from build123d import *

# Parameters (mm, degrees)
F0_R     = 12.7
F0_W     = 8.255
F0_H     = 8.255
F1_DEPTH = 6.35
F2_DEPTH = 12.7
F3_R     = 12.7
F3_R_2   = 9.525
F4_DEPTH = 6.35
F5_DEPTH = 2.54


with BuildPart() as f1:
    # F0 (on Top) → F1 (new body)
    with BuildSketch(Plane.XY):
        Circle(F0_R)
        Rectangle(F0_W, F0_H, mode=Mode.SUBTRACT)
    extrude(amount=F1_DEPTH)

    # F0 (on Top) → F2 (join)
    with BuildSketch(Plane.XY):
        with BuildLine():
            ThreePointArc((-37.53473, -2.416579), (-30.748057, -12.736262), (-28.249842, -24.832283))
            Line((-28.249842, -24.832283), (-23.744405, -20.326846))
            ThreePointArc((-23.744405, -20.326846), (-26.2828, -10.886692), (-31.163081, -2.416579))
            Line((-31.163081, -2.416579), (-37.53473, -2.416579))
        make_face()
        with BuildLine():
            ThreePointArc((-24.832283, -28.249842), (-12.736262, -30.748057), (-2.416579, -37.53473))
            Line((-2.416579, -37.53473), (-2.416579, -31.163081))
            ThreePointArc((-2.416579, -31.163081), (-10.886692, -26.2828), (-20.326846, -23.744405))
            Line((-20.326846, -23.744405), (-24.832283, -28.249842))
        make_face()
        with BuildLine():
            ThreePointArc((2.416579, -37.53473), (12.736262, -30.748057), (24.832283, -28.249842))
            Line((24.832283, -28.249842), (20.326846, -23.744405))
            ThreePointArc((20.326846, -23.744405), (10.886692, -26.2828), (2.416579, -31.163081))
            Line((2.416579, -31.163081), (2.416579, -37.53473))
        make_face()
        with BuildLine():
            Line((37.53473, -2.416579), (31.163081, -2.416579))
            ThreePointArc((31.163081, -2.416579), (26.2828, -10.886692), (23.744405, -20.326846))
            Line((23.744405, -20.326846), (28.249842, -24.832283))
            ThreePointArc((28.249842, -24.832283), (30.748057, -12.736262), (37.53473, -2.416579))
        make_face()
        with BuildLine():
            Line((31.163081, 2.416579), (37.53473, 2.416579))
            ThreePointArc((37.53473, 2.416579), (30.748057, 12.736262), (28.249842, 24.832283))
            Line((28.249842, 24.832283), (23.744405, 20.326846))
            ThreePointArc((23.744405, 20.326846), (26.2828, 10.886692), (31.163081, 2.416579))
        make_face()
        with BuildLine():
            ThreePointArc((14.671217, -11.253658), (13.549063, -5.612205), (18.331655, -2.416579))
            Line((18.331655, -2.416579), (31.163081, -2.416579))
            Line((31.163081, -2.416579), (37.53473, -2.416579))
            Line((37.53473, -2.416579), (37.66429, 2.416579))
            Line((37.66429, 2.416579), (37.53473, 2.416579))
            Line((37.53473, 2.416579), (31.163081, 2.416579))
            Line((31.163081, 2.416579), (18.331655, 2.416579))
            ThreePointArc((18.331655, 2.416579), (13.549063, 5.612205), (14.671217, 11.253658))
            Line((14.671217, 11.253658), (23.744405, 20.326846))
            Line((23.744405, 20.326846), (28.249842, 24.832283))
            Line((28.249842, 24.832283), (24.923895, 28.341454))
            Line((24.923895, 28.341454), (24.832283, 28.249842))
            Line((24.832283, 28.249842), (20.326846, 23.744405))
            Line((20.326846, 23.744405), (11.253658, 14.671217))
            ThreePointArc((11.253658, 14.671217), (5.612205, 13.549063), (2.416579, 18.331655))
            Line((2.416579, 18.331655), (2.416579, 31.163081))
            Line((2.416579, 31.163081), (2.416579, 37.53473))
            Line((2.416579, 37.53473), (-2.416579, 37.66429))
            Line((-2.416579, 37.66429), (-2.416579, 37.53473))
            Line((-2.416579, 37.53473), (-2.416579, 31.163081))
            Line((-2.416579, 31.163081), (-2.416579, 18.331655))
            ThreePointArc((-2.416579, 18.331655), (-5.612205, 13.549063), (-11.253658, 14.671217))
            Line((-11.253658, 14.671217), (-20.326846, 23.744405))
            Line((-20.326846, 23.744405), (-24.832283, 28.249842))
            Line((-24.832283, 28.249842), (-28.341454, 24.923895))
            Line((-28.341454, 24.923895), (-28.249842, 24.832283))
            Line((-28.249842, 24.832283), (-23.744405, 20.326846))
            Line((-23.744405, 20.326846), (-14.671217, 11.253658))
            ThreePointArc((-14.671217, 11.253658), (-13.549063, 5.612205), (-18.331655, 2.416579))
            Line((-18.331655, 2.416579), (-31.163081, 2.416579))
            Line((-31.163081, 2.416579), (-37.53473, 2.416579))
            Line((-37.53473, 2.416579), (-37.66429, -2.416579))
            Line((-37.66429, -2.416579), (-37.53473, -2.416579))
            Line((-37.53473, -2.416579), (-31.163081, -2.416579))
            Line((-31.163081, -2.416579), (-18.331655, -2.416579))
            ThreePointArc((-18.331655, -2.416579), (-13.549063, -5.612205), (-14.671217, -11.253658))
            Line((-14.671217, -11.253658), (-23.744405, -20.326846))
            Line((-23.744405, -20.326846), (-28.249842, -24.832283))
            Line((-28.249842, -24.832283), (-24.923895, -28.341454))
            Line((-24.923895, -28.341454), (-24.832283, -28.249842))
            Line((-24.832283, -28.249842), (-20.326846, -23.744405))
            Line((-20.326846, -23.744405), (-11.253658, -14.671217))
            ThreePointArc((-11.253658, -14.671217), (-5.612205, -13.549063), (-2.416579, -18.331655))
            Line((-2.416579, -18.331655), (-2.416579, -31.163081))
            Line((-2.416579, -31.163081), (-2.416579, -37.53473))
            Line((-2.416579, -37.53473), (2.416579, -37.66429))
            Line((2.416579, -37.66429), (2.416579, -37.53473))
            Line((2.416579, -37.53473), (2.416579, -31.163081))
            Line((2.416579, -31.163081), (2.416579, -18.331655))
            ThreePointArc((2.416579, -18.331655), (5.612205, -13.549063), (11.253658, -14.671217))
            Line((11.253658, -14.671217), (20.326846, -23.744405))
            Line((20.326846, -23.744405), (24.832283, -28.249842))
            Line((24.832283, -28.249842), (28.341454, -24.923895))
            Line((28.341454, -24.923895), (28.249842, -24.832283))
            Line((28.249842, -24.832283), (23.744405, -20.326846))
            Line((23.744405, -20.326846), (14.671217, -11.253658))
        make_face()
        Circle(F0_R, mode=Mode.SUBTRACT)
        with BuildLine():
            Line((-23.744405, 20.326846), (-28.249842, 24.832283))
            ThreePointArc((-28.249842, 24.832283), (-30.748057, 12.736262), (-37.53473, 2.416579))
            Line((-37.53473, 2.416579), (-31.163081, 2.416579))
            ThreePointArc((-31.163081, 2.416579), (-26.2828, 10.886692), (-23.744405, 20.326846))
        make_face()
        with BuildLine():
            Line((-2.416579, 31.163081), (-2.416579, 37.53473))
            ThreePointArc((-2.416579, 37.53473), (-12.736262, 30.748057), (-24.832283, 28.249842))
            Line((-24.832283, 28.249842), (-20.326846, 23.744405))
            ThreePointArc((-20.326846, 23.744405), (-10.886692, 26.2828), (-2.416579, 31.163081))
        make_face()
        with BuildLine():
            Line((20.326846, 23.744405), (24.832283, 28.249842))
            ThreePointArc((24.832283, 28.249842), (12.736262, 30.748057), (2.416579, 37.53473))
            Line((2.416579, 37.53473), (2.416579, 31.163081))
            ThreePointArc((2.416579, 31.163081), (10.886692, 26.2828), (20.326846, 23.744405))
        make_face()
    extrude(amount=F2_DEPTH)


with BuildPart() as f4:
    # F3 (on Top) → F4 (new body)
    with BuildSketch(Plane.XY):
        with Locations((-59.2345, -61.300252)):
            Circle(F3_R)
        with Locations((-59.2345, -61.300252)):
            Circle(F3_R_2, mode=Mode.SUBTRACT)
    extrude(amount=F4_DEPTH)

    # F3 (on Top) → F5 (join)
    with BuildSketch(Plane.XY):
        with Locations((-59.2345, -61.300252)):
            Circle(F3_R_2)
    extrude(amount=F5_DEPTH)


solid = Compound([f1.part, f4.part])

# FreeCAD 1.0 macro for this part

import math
import FreeCAD as App
import Part
import Sketcher

V = App.Vector
Q = App.Units.Quantity


def add_polygon(sketch, points):
    """Adds a closed chain of lines whose ends are joined by coincident constraints."""
    first, n = sketch.GeometryCount, len(points)
    for a, b in zip(points, points[1:] + points[:1]):
        sketch.addGeometry(Part.LineSegment(App.Vector(*a, 0), App.Vector(*b, 0)), False)
    for i in range(n):
        sketch.addConstraint(Sketcher.Constraint("Coincident", first + i, 2, first + (i + 1) % n, 1))

doc = App.newDocument("Part")
body = doc.addObject("PartDesign::Body", "Body")

sketch1 = doc.addObject("Sketcher::SketchObject", "Sketch")
body.addObject(sketch1)
sketch1.AttachmentSupport = (doc.XY_Plane, [""])
sketch1.MapMode = "FlatFace"
sketch1.addGeometry(Part.Circle(V(0, 0, 0), V(0, 0, 1), 13), False)
add_polygon(sketch1, [(4, -4), (-4, -4), (-4, 4), (4, 4)])
sketch1.addConstraint(Sketcher.Constraint("Horizontal", 1))
sketch1.addConstraint(Sketcher.Constraint("Vertical", 2))
sketch1.addConstraint(Sketcher.Constraint("Horizontal", 3))
sketch1.addConstraint(Sketcher.Constraint("Vertical", 4))
sketch1.addConstraint(Sketcher.Constraint("Coincident", 0, 3, -1, 1))
sketch1.addConstraint(Sketcher.Constraint("Symmetric", 1, 2, 3, 2, -1, 1))
sketch1.addConstraint(Sketcher.Constraint("Equal", 3, 2))
sketch1.addConstraint(Sketcher.Constraint("Diameter", 0, Q("1 in")))
sketch1.addConstraint(Sketcher.Constraint("DistanceX", 1, 2, 1, 1, Q("0.325 in")))
pad1 = doc.addObject("PartDesign::Pad", "Pad")
body.addObject(pad1)
pad1.Profile = sketch1
pad1.Length = Q("0.25 in")

sketch2 = doc.addObject("Sketcher::SketchObject", "Sketch001")
body.addObject(sketch2)
sketch2.AttachmentSupport = (doc.XY_Plane, [""])
sketch2.MapMode = "FlatFace"
sketch2.addGeometry(Part.ArcOfCircle(Part.Circle(V(-61.111805, -25.313338, 0), V(0, 0, 1), 32.865484), math.radians(0.838673), math.radians(44.161325)), False)
sketch2.addGeometry(Part.LineSegment(V(-28.249842, -24.832283, 0), V(-24.923895, -28.341454, 0)), False)
sketch2.addGeometry(Part.LineSegment(V(-24.923895, -28.341454, 0), V(-24.832283, -28.249842, 0)), False)
sketch2.addGeometry(Part.ArcOfCircle(Part.Circle(V(-25.313338, -61.111805, 0), V(0, 0, 1), 32.865484), math.radians(45.838675), math.radians(89.161327)), False)
sketch2.addGeometry(Part.LineSegment(V(-2.416579, -37.53473, 0), V(2.416579, -37.66429, 0)), False)
sketch2.addGeometry(Part.LineSegment(V(2.416579, -37.66429, 0), V(2.416579, -37.53473, 0)), False)
sketch2.addGeometry(Part.ArcOfCircle(Part.Circle(V(25.313338, -61.111805, 0), V(0, 0, 1), 32.865484), math.radians(90.838673), math.radians(134.161325)), False)
sketch2.addGeometry(Part.LineSegment(V(24.832283, -28.249842, 0), V(28.341454, -24.923895, 0)), False)
sketch2.addGeometry(Part.LineSegment(V(28.341454, -24.923895, 0), V(28.249842, -24.832283, 0)), False)
sketch2.addGeometry(Part.ArcOfCircle(Part.Circle(V(61.111805, -25.313338, 0), V(0, 0, 1), 32.865484), math.radians(135.838675), math.radians(179.161327)), False)
sketch2.addGeometry(Part.LineSegment(V(37.53473, -2.416579, 0), V(37.66429, 2.416579, 0)), False)
sketch2.addGeometry(Part.LineSegment(V(37.66429, 2.416579, 0), V(37.53473, 2.416579, 0)), False)
sketch2.addGeometry(Part.ArcOfCircle(Part.Circle(V(61.111805, 25.313338, 0), V(0, 0, 1), 32.865484), math.radians(-179.161327), math.radians(-135.838675)), False)
sketch2.addGeometry(Part.LineSegment(V(28.249842, 24.832283, 0), V(24.923895, 28.341454, 0)), False)
sketch2.addGeometry(Part.LineSegment(V(24.923895, 28.341454, 0), V(24.832283, 28.249842, 0)), False)
sketch2.addGeometry(Part.ArcOfCircle(Part.Circle(V(25.313338, 61.111805, 0), V(0, 0, 1), 32.865484), math.radians(-134.161325), math.radians(-90.838673)), False)
sketch2.addGeometry(Part.LineSegment(V(2.416579, 37.53473, 0), V(-2.416579, 37.66429, 0)), False)
sketch2.addGeometry(Part.LineSegment(V(-2.416579, 37.66429, 0), V(-2.416579, 37.53473, 0)), False)
sketch2.addGeometry(Part.ArcOfCircle(Part.Circle(V(-25.313338, 61.111805, 0), V(0, 0, 1), 32.865484), math.radians(-89.161327), math.radians(-45.838675)), False)
sketch2.addGeometry(Part.LineSegment(V(-24.832283, 28.249842, 0), V(-28.341454, 24.923895, 0)), False)
sketch2.addGeometry(Part.LineSegment(V(-28.341454, 24.923895, 0), V(-28.249842, 24.832283, 0)), False)
sketch2.addGeometry(Part.ArcOfCircle(Part.Circle(V(-61.111805, 25.313338, 0), V(0, 0, 1), 32.865484), math.radians(-44.161325), math.radians(-0.838673)), False)
sketch2.addGeometry(Part.LineSegment(V(-37.53473, 2.416579, 0), V(-37.66429, -2.416579, 0)), False)
sketch2.addGeometry(Part.LineSegment(V(-37.66429, -2.416579, 0), V(-37.53473, -2.416579, 0)), False)
sketch2.addGeometry(Part.LineSegment(V(20.326846, 23.744405, 0), V(11.253658, 14.671217, 0)), False)
sketch2.addGeometry(Part.ArcOfCircle(Part.Circle(V(7.59322, 18.331656, 0), V(0, 0, 1), 5.176641), math.radians(-179.999991), math.radians(-45.000009)), False)
sketch2.addGeometry(Part.LineSegment(V(2.416579, 18.331655, 0), V(2.416579, 31.163081, 0)), False)
sketch2.addGeometry(Part.ArcOfCircle(Part.Circle(V(25.313333, 61.11179, 0), V(0, 0, 1), 37.698627), math.radians(-127.399079), math.radians(-97.600924)), False)
sketch2.addGeometry(Part.LineSegment(V(-2.416579, 31.163081, 0), V(-2.416579, 18.331655, 0)), False)
sketch2.addGeometry(Part.ArcOfCircle(Part.Circle(V(-7.59322, 18.331656, 0), V(0, 0, 1), 5.176641), math.radians(-134.999991), math.radians(-0.000009)), False)
sketch2.addGeometry(Part.LineSegment(V(-11.253658, 14.671217, 0), V(-20.326846, 23.744405, 0)), False)
sketch2.addGeometry(Part.ArcOfCircle(Part.Circle(V(-25.313333, 61.11179, 0), V(0, 0, 1), 37.698627), math.radians(-82.399076), math.radians(-52.600921)), False)
sketch2.addGeometry(Part.LineSegment(V(-18.331655, 2.416579, 0), V(-31.163081, 2.416579, 0)), False)
sketch2.addGeometry(Part.ArcOfCircle(Part.Circle(V(-61.11179, 25.313333, 0), V(0, 0, 1), 37.698627), math.radians(-37.399079), math.radians(-7.600924)), False)
sketch2.addGeometry(Part.LineSegment(V(-23.744405, 20.326846, 0), V(-14.671217, 11.253658, 0)), False)
sketch2.addGeometry(Part.ArcOfCircle(Part.Circle(V(-18.331656, 7.59322, 0), V(0, 0, 1), 5.176641), math.radians(-89.999991), math.radians(44.999991)), False)
sketch2.addGeometry(Part.LineSegment(V(-20.326846, -23.744405, 0), V(-11.253658, -14.671217, 0)), False)
sketch2.addGeometry(Part.ArcOfCircle(Part.Circle(V(-7.59322, -18.331656, 0), V(0, 0, 1), 5.176641), math.radians(0.000009), math.radians(134.999991)), False)
sketch2.addGeometry(Part.LineSegment(V(-2.416579, -18.331655, 0), V(-2.416579, -31.163081, 0)), False)
sketch2.addGeometry(Part.ArcOfCircle(Part.Circle(V(-25.313333, -61.11179, 0), V(0, 0, 1), 37.698627), math.radians(52.600921), math.radians(82.399076)), False)
sketch2.addGeometry(Part.ArcOfCircle(Part.Circle(V(-61.11179, -25.313333, 0), V(0, 0, 1), 37.698627), math.radians(7.600924), math.radians(37.399079)), False)
sketch2.addGeometry(Part.LineSegment(V(-31.163081, -2.416579, 0), V(-18.331655, -2.416579, 0)), False)
sketch2.addGeometry(Part.ArcOfCircle(Part.Circle(V(-18.331656, -7.59322, 0), V(0, 0, 1), 5.176641), math.radians(-44.999991), math.radians(89.999991)), False)
sketch2.addGeometry(Part.LineSegment(V(-14.671217, -11.253658, 0), V(-23.744405, -20.326846, 0)), False)
sketch2.addGeometry(Part.LineSegment(V(2.416579, -31.163081, 0), V(2.416579, -18.331655, 0)), False)
sketch2.addGeometry(Part.ArcOfCircle(Part.Circle(V(7.59322, -18.331656, 0), V(0, 0, 1), 5.176641), math.radians(45.000009), math.radians(179.999991)), False)
sketch2.addGeometry(Part.LineSegment(V(11.253658, -14.671217, 0), V(20.326846, -23.744405, 0)), False)
sketch2.addGeometry(Part.ArcOfCircle(Part.Circle(V(25.313333, -61.11179, 0), V(0, 0, 1), 37.698627), math.radians(97.600924), math.radians(127.399079)), False)
sketch2.addGeometry(Part.ArcOfCircle(Part.Circle(V(18.331656, -7.59322, 0), V(0, 0, 1), 5.176641), math.radians(90.000009), math.radians(224.999991)), False)
sketch2.addGeometry(Part.LineSegment(V(18.331655, -2.416579, 0), V(31.163081, -2.416579, 0)), False)
sketch2.addGeometry(Part.ArcOfCircle(Part.Circle(V(61.11179, -25.313333, 0), V(0, 0, 1), 37.698627), math.radians(142.600921), math.radians(172.399076)), False)
sketch2.addGeometry(Part.LineSegment(V(23.744405, -20.326846, 0), V(14.671217, -11.253658, 0)), False)
sketch2.addGeometry(Part.Circle(V(0, 0, 0), V(0, 0, 1), 12.7), False)
sketch2.addGeometry(Part.LineSegment(V(31.163081, 2.416579, 0), V(18.331655, 2.416579, 0)), False)
sketch2.addGeometry(Part.ArcOfCircle(Part.Circle(V(18.331656, 7.59322, 0), V(0, 0, 1), 5.176641), math.radians(135.000009), math.radians(269.999991)), False)
sketch2.addGeometry(Part.LineSegment(V(14.671217, 11.253658, 0), V(23.744405, 20.326846, 0)), False)
sketch2.addGeometry(Part.ArcOfCircle(Part.Circle(V(61.11179, 25.313333, 0), V(0, 0, 1), 37.698627), math.radians(-172.399076), math.radians(-142.600921)), False)
sketch2.addConstraint(Sketcher.Constraint("Coincident", 0, 1, 1, 1))
sketch2.addConstraint(Sketcher.Constraint("Coincident", 1, 2, 2, 1))
sketch2.addConstraint(Sketcher.Constraint("Coincident", 2, 2, 3, 2))
sketch2.addConstraint(Sketcher.Constraint("Coincident", 3, 1, 4, 1))
sketch2.addConstraint(Sketcher.Constraint("Coincident", 4, 2, 5, 1))
sketch2.addConstraint(Sketcher.Constraint("Coincident", 5, 2, 6, 2))
sketch2.addConstraint(Sketcher.Constraint("Coincident", 6, 1, 7, 1))
sketch2.addConstraint(Sketcher.Constraint("Coincident", 7, 2, 8, 1))
sketch2.addConstraint(Sketcher.Constraint("Coincident", 8, 2, 9, 2))
sketch2.addConstraint(Sketcher.Constraint("Coincident", 9, 1, 10, 1))
sketch2.addConstraint(Sketcher.Constraint("Coincident", 10, 2, 11, 1))
sketch2.addConstraint(Sketcher.Constraint("Coincident", 11, 2, 12, 2))
sketch2.addConstraint(Sketcher.Constraint("Coincident", 12, 1, 13, 1))
sketch2.addConstraint(Sketcher.Constraint("Coincident", 13, 2, 14, 1))
sketch2.addConstraint(Sketcher.Constraint("Coincident", 14, 2, 15, 2))
sketch2.addConstraint(Sketcher.Constraint("Coincident", 15, 1, 16, 1))
sketch2.addConstraint(Sketcher.Constraint("Coincident", 16, 2, 17, 1))
sketch2.addConstraint(Sketcher.Constraint("Coincident", 17, 2, 18, 2))
sketch2.addConstraint(Sketcher.Constraint("Coincident", 18, 1, 19, 1))
sketch2.addConstraint(Sketcher.Constraint("Coincident", 19, 2, 20, 1))
sketch2.addConstraint(Sketcher.Constraint("Coincident", 20, 2, 21, 2))
sketch2.addConstraint(Sketcher.Constraint("Coincident", 21, 1, 22, 1))
sketch2.addConstraint(Sketcher.Constraint("Coincident", 22, 2, 23, 1))
sketch2.addConstraint(Sketcher.Constraint("Coincident", 23, 2, 0, 2))
sketch2.addConstraint(Sketcher.Constraint("Tangent", 24, 2, 25, 2))
sketch2.addConstraint(Sketcher.Constraint("Tangent", 25, 1, 26, 1))
sketch2.addConstraint(Sketcher.Constraint("Coincident", 26, 2, 27, 1))
sketch2.addConstraint(Sketcher.Constraint("Coincident", 27, 2, 24, 1))
sketch2.addConstraint(Sketcher.Constraint("Tangent", 28, 2, 29, 2))
sketch2.addConstraint(Sketcher.Constraint("Tangent", 29, 1, 30, 1))
sketch2.addConstraint(Sketcher.Constraint("Coincident", 30, 2, 31, 1))
sketch2.addConstraint(Sketcher.Constraint("Coincident", 31, 2, 28, 1))
sketch2.addConstraint(Sketcher.Constraint("Coincident", 32, 2, 33, 1))
sketch2.addConstraint(Sketcher.Constraint("Coincident", 33, 2, 34, 1))
sketch2.addConstraint(Sketcher.Constraint("Tangent", 34, 2, 35, 2))
sketch2.addConstraint(Sketcher.Constraint("Tangent", 35, 1, 32, 1))
sketch2.addConstraint(Sketcher.Constraint("Tangent", 36, 2, 37, 2))
sketch2.addConstraint(Sketcher.Constraint("Tangent", 37, 1, 38, 1))
sketch2.addConstraint(Sketcher.Constraint("Coincident", 38, 2, 39, 1))
sketch2.addConstraint(Sketcher.Constraint("Coincident", 39, 2, 36, 1))
sketch2.addConstraint(Sketcher.Constraint("Coincident", 40, 2, 41, 1))
sketch2.addConstraint(Sketcher.Constraint("Tangent", 41, 2, 42, 2))
sketch2.addConstraint(Sketcher.Constraint("Tangent", 42, 1, 43, 1))
sketch2.addConstraint(Sketcher.Constraint("Coincident", 43, 2, 40, 1))
sketch2.addConstraint(Sketcher.Constraint("Tangent", 44, 2, 45, 2))
sketch2.addConstraint(Sketcher.Constraint("Tangent", 45, 1, 46, 1))
sketch2.addConstraint(Sketcher.Constraint("Coincident", 46, 2, 47, 1))
sketch2.addConstraint(Sketcher.Constraint("Coincident", 47, 2, 44, 1))
sketch2.addConstraint(Sketcher.Constraint("Tangent", 48, 1, 49, 1))
sketch2.addConstraint(Sketcher.Constraint("Coincident", 49, 2, 50, 1))
sketch2.addConstraint(Sketcher.Constraint("Coincident", 50, 2, 51, 1))
sketch2.addConstraint(Sketcher.Constraint("Tangent", 51, 2, 48, 2))
sketch2.addConstraint(Sketcher.Constraint("Tangent", 53, 2, 54, 2))
sketch2.addConstraint(Sketcher.Constraint("Tangent", 54, 1, 55, 1))
sketch2.addConstraint(Sketcher.Constraint("Coincident", 55, 2, 56, 1))
sketch2.addConstraint(Sketcher.Constraint("Coincident", 56, 2, 53, 1))
sketch2.addConstraint(Sketcher.Constraint("Vertical", 5))
sketch2.addConstraint(Sketcher.Constraint("Horizontal", 11))
sketch2.addConstraint(Sketcher.Constraint("Vertical", 17))
sketch2.addConstraint(Sketcher.Constraint("Horizontal", 23))
sketch2.addConstraint(Sketcher.Constraint("Vertical", 26))
sketch2.addConstraint(Sketcher.Constraint("Vertical", 28))
sketch2.addConstraint(Sketcher.Constraint("Horizontal", 32))
sketch2.addConstraint(Sketcher.Constraint("Vertical", 38))
sketch2.addConstraint(Sketcher.Constraint("Horizontal", 41))
sketch2.addConstraint(Sketcher.Constraint("Vertical", 44))
sketch2.addConstraint(Sketcher.Constraint("Horizontal", 49))
sketch2.addConstraint(Sketcher.Constraint("Horizontal", 53))
sketch2.addConstraint(Sketcher.Constraint("Coincident", 52, 3, -1, 1))
sketch2.addConstraint(Sketcher.Constraint("Equal", 0, 3))
sketch2.addConstraint(Sketcher.Constraint("Equal", 3, 6))
sketch2.addConstraint(Sketcher.Constraint("Equal", 6, 9))
sketch2.addConstraint(Sketcher.Constraint("Equal", 9, 12))
sketch2.addConstraint(Sketcher.Constraint("Equal", 12, 15))
sketch2.addConstraint(Sketcher.Constraint("Equal", 15, 18))
sketch2.addConstraint(Sketcher.Constraint("Equal", 18, 21))
sketch2.addConstraint(Sketcher.Constraint("Equal", 25, 29))
sketch2.addConstraint(Sketcher.Constraint("Equal", 27, 31))
sketch2.addConstraint(Sketcher.Constraint("Equal", 31, 33))
sketch2.addConstraint(Sketcher.Constraint("Equal", 29, 35))
sketch2.addConstraint(Sketcher.Constraint("Equal", 35, 37))
sketch2.addConstraint(Sketcher.Constraint("Equal", 33, 39))
sketch2.addConstraint(Sketcher.Constraint("Equal", 39, 40))
sketch2.addConstraint(Sketcher.Constraint("Equal", 37, 42))
sketch2.addConstraint(Sketcher.Constraint("Equal", 42, 45))
sketch2.addConstraint(Sketcher.Constraint("Equal", 40, 47))
sketch2.addConstraint(Sketcher.Constraint("Equal", 45, 48))
sketch2.addConstraint(Sketcher.Constraint("Equal", 47, 50))
sketch2.addConstraint(Sketcher.Constraint("Equal", 48, 54))
sketch2.addConstraint(Sketcher.Constraint("Equal", 50, 56))
sketch2.addConstraint(Sketcher.Constraint("Symmetric", 0, 3, 12, 3, -1, 1))
sketch2.addConstraint(Sketcher.Constraint("Symmetric", 3, 3, 15, 3, -1, 1))
sketch2.addConstraint(Sketcher.Constraint("Symmetric", 6, 3, 18, 3, -1, 1))
sketch2.addConstraint(Sketcher.Constraint("Symmetric", 9, 3, 21, 3, -1, 1))
sketch2.addConstraint(Sketcher.Constraint("Symmetric", 25, 3, 37, 3, -1, 1))
sketch2.addConstraint(Sketcher.Constraint("Symmetric", 27, 3, 39, 3, -1, 1))
sketch2.addConstraint(Sketcher.Constraint("Symmetric", 29, 3, 45, 3, -1, 1))
sketch2.addConstraint(Sketcher.Constraint("Symmetric", 31, 3, 47, 3, -1, 1))
sketch2.addConstraint(Sketcher.Constraint("Symmetric", 35, 3, 48, 3, -1, 1))
sketch2.addConstraint(Sketcher.Constraint("Symmetric", 33, 3, 50, 3, -1, 1))
sketch2.addConstraint(Sketcher.Constraint("Symmetric", 42, 3, 54, 3, -1, 1))
sketch2.addConstraint(Sketcher.Constraint("Symmetric", 40, 3, 56, 3, -1, 1))
sketch2.addConstraint(Sketcher.Constraint("Symmetric", 1, 2, 13, 2, -1, 1))
sketch2.addConstraint(Sketcher.Constraint("Symmetric", 4, 2, 16, 2, -1, 1))
sketch2.addConstraint(Sketcher.Constraint("Symmetric", 7, 2, 19, 2, -1, 1))
sketch2.addConstraint(Sketcher.Constraint("Symmetric", 10, 2, 22, 2, -1, 1))
sketch2.addConstraint(Sketcher.Constraint("Symmetric", 3, 3, 6, 3, -2))
sketch2.addConstraint(Sketcher.Constraint("Symmetric", 0, 3, 9, 3, -2))
sketch2.addConstraint(Sketcher.Constraint("Symmetric", 25, 3, 29, 3, -2))
sketch2.addConstraint(Sketcher.Constraint("Symmetric", 27, 3, 31, 3, -2))
sketch2.addConstraint(Sketcher.Constraint("Symmetric", 42, 3, 48, 3, -2))
sketch2.addConstraint(Sketcher.Constraint("Symmetric", 40, 3, 50, 3, -2))
sketch2.addConstraint(Sketcher.Constraint("Perpendicular", 1, 7))
sketch2.addConstraint(Sketcher.Constraint("Perpendicular", 2, 8))
sketch2.addConstraint(Sketcher.Constraint("Perpendicular", 4, 10))
sketch2.addConstraint(Sketcher.Constraint("Perpendicular", 7, 13))
sketch2.addConstraint(Sketcher.Constraint("Perpendicular", 8, 14))
sketch2.addConstraint(Sketcher.Constraint("Perpendicular", 10, 16))
sketch2.addConstraint(Sketcher.Constraint("Perpendicular", 13, 19))
sketch2.addConstraint(Sketcher.Constraint("Perpendicular", 14, 20))
sketch2.addConstraint(Sketcher.Constraint("Perpendicular", 16, 22))
sketch2.addConstraint(Sketcher.Constraint("Perpendicular", 20, 24))
sketch2.addConstraint(Sketcher.Constraint("Perpendicular", 24, 30))
sketch2.addConstraint(Sketcher.Constraint("Parallel", 30, 34))
sketch2.addConstraint(Sketcher.Constraint("Perpendicular", 34, 36))
sketch2.addConstraint(Sketcher.Constraint("Parallel", 36, 43))
sketch2.addConstraint(Sketcher.Constraint("Perpendicular", 43, 46))
sketch2.addConstraint(Sketcher.Constraint("Parallel", 46, 51))
sketch2.addConstraint(Sketcher.Constraint("Perpendicular", 51, 55))
sketch2.addConstraint(Sketcher.Constraint("Horizontal", 3, 1, 5, 2))
sketch2.addConstraint(Sketcher.Constraint("Horizontal", 2, 2, 6, 1))
sketch2.addConstraint(Sketcher.Constraint("Horizontal", 0, 1, 8, 2))
sketch2.addConstraint(Sketcher.Constraint("Horizontal", 11, 2, 21, 1))
sketch2.addConstraint(Sketcher.Constraint("Horizontal", 24, 2, 29, 1))
sketch2.addConstraint(Sketcher.Constraint("Horizontal", 21, 1, 32, 2))
sketch2.addConstraint(Sketcher.Constraint("Vertical", 15, 1, 25, 1))
sketch2.addConstraint(Sketcher.Constraint("Equal", 23, 5))
sketch2.addConstraint(Sketcher.Constraint("Equal", 53, 26))
sketch2.addConstraint(Sketcher.Constraint("Equal", 1, 4))
sketch2.addConstraint(Sketcher.Constraint("Equal", 2, 8))
sketch2.addConstraint(Sketcher.Constraint("Equal", 30, 34))
sketch2.addConstraint(Sketcher.Constraint("Diameter", 52, Q("1 in")))
sketch2.addConstraint(Sketcher.Constraint("Radius", 25, Q("5.176641 mm")))
sketch2.addConstraint(Sketcher.Constraint("Radius", 0, Q("32.865484 mm")))
sketch2.addConstraint(Sketcher.Constraint("Radius", 27, Q("37.698627 mm")))
sketch2.addConstraint(Sketcher.Constraint("DistanceX", 11, 2, 11, 1, Q("0.12956 mm")))
sketch2.addConstraint(Sketcher.Constraint("Distance", 2, Q("0.129559 mm")))
sketch2.addConstraint(Sketcher.Constraint("DistanceX", 32, 2, 32, 1, Q("12.831426 mm")))
sketch2.addConstraint(Sketcher.Constraint("DistanceX", -1, 1, 25, 3, Q("7.59322 mm")))
sketch2.addConstraint(Sketcher.Constraint("DistanceY", -1, 1, 27, 3, Q("61.11179 mm")))
sketch2.addConstraint(Sketcher.Constraint("DistanceX", 33, 3, -1, 1, Q("61.11179 mm")))
sketch2.addConstraint(Sketcher.Constraint("DistanceY", 3, 1, -1, 1, Q("37.53473 mm")))
sketch2.addConstraint(Sketcher.Constraint("DistanceX", -1, 1, 9, 1, Q("37.53473 mm")))
sketch2.addConstraint(Sketcher.Constraint("DistanceY", -1, 1, 26, 2, Q("31.163081 mm")))
sketch2.addConstraint(Sketcher.Constraint("DistanceX", 0, 3, -1, 1, Q("61.111805 mm")))
sketch2.addConstraint(Sketcher.Constraint("DistanceX", 3, 3, -1, 1, Q("25.313338 mm")))
pad2 = doc.addObject("PartDesign::Pad", "Pad001")
body.addObject(pad2)
pad2.Profile = sketch2
pad2.Length = Q("0.5 in")
body2 = doc.addObject("PartDesign::Body", "Body001")

sketch3 = doc.addObject("Sketcher::SketchObject", "Sketch002")
body2.addObject(sketch3)
sketch3.AttachmentSupport = (doc.getObject("XY_Plane001"), [""])
sketch3.MapMode = "FlatFace"
sketch3.addGeometry(Part.Circle(V(-59, -61, 0), V(0, 0, 1), 13), False)
sketch3.addGeometry(Part.Circle(V(-59, -61, 0), V(0, 0, 1), 10), False)
sketch3.addConstraint(Sketcher.Constraint("Coincident", 1, 3, 0, 3))
sketch3.addConstraint(Sketcher.Constraint("Diameter", 0, Q("1 in")))
sketch3.addConstraint(Sketcher.Constraint("Diameter", 1, Q("0.75 in")))
sketch3.addConstraint(Sketcher.Constraint("DistanceX", 0, 3, -1, 1, Q("59.2345 mm")))
sketch3.addConstraint(Sketcher.Constraint("DistanceY", 0, 3, -1, 1, Q("61.300252 mm")))
pad3 = doc.addObject("PartDesign::Pad", "Pad002")
body2.addObject(pad3)
pad3.Profile = sketch3
pad3.Length = Q("0.25 in")

sketch4 = doc.addObject("Sketcher::SketchObject", "Sketch003")
body2.addObject(sketch4)
sketch4.AttachmentSupport = (doc.getObject("XY_Plane001"), [""])
sketch4.MapMode = "FlatFace"
sketch4.addGeometry(Part.Circle(V(-59, -61, 0), V(0, 0, 1), 10), False)
sketch4.addConstraint(Sketcher.Constraint("Diameter", 0, Q("0.75 in")))
sketch4.addConstraint(Sketcher.Constraint("DistanceX", 0, 3, -1, 1, Q("59.2345 mm")))
sketch4.addConstraint(Sketcher.Constraint("DistanceY", 0, 3, -1, 1, Q("61.300252 mm")))
pad4 = doc.addObject("PartDesign::Pad", "Pad003")
body2.addObject(pad4)
pad4.Profile = sketch4
pad4.Length = Q("0.1 in")

doc.recompute()
